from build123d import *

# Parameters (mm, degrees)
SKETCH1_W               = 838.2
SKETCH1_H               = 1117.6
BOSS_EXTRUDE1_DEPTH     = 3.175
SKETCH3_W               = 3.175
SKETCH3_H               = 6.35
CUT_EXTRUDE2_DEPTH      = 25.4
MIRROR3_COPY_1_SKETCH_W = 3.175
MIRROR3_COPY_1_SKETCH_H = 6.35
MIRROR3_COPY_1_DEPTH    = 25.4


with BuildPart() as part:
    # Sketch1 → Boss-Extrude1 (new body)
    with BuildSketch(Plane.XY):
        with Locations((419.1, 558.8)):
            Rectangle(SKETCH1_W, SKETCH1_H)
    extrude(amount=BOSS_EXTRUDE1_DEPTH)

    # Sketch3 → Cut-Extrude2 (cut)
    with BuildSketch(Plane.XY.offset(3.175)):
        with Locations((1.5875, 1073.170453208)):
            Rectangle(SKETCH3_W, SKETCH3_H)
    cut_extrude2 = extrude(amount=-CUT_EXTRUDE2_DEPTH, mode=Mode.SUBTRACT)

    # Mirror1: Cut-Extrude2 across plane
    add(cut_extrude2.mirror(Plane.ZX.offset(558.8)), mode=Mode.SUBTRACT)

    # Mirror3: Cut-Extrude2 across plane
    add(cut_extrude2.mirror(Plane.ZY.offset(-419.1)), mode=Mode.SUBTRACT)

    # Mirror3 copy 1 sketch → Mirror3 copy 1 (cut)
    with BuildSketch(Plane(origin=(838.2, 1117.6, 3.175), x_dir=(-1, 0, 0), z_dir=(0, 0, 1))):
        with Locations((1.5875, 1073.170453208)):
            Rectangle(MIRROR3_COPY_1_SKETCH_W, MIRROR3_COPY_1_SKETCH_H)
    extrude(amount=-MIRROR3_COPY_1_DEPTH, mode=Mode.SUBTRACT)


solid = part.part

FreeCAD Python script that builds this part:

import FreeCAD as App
import Part
import Sketcher
from FreeCAD import Vector
Q = App.Units.Quantity

doc = App.newDocument("Part")
body = doc.addObject("PartDesign::Body", "Body")

# Sketch on XY plane
sketch1 = body.newObject("Sketcher::SketchObject", "Sketch")
sketch1.AttachmentSupport = (doc.getObject("XY_Plane"), [""])
sketch1.MapMode = "FlatFace"
sketch1.addGeometry(Part.LineSegment(Vector(0, 1118, 0), Vector(0, 0, 0)), False)
sketch1.addGeometry(Part.LineSegment(Vector(0, 0, 0), Vector(838, 0, 0)), False)
sketch1.addGeometry(Part.LineSegment(Vector(838, 0, 0), Vector(838, 1118, 0)), False)
sketch1.addGeometry(Part.LineSegment(Vector(838, 1118, 0), Vector(0, 1118, 0)), False)
sketch1.addConstraint(Sketcher.Constraint("Coincident", 0, 2, 1, 1))
sketch1.addConstraint(Sketcher.Constraint("Coincident", 1, 2, 2, 1))
sketch1.addConstraint(Sketcher.Constraint("Coincident", 2, 2, 3, 1))
sketch1.addConstraint(Sketcher.Constraint("Coincident", 3, 2, 0, 1))
sketch1.addConstraint(Sketcher.Constraint("Vertical", 0))
sketch1.addConstraint(Sketcher.Constraint("Horizontal", 1))
sketch1.addConstraint(Sketcher.Constraint("Vertical", 2))
sketch1.addConstraint(Sketcher.Constraint("Horizontal", 3))
sketch1.addConstraint(Sketcher.Constraint("Coincident", 0, 2, -1, 1))
sketch1.addConstraint(Sketcher.Constraint("DistanceX", 1, 1, 1, 2, Q("33 in")))
sketch1.addConstraint(Sketcher.Constraint("DistanceY", 0, 2, 0, 1, Q("44 in")))
pad1 = body.newObject("PartDesign::Pad", "Pad")
pad1.Profile = sketch1
pad1.Length = Q("0.125 in")

# Sketch on XY plane
sketch2 = body.newObject("Sketcher::SketchObject", "Sketch001")
sketch2.AttachmentSupport = (doc.getObject("XY_Plane"), [""])
sketch2.MapMode = "FlatFace"
sketch2.AttachmentOffset = App.Placement(Vector(0, 0, 0.125 * 25.4), App.Rotation())
sketch2.addGeometry(Part.LineSegment(Vector(0, 1076.3, 0), Vector(0, 1070, 0)), False)
sketch2.addGeometry(Part.LineSegment(Vector(0, 1070, 0), Vector(3.2, 1070, 0)), False)
sketch2.addGeometry(Part.LineSegment(Vector(3.2, 1070, 0), Vector(3.2, 1076.3, 0)), False)
sketch2.addGeometry(Part.LineSegment(Vector(3.2, 1076.3, 0), Vector(0, 1076.3, 0)), False)
sketch2.addConstraint(Sketcher.Constraint("Coincident", 0, 2, 1, 1))
sketch2.addConstraint(Sketcher.Constraint("Coincident", 1, 2, 2, 1))
sketch2.addConstraint(Sketcher.Constraint("Coincident", 2, 2, 3, 1))
sketch2.addConstraint(Sketcher.Constraint("Coincident", 3, 2, 0, 1))
sketch2.addConstraint(Sketcher.Constraint("Vertical", 0))
sketch2.addConstraint(Sketcher.Constraint("Horizontal", 1))
sketch2.addConstraint(Sketcher.Constraint("Vertical", 2))
sketch2.addConstraint(Sketcher.Constraint("Horizontal", 3))
sketch2.addConstraint(Sketcher.Constraint("PointOnObject", 0, 2, -2))
sketch2.addConstraint(Sketcher.Constraint("DistanceY", 0, 2, 0, 1, Q("0.25 in")))
sketch2.addConstraint(Sketcher.Constraint("DistanceX", 1, 1, 1, 2, Q("0.125 in")))
sketch2.addConstraint(Sketcher.Constraint("DistanceY", -1, 1, 0, 2, Q("1069.995453 mm")))
pocket1 = body.newObject("PartDesign::Pocket", "Pocket")
pocket1.Profile = sketch2
pocket1.Length = Q("1 in")
doc.recompute()

datumplane = body.newObject("PartDesign::Plane", "DatumPlane")
datumplane.AttachmentSupport = (doc.getObject("XZ_Plane"), [""])
datumplane.MapMode = "FlatFace"
datumplane.AttachmentOffset = App.Placement(Vector(0, 0, -22 * 25.4), App.Rotation())
mirrored = body.newObject("PartDesign::Mirrored", "Mirrored")
mirrored.Originals = [pocket1]
mirrored.MirrorPlane = (datumplane, [""])
body.Tip = mirrored
doc.recompute()

datumplane2 = body.newObject("PartDesign::Plane", "DatumPlane001")
datumplane2.AttachmentSupport = (doc.getObject("YZ_Plane"), [""])
datumplane2.MapMode = "FlatFace"
datumplane2.AttachmentOffset = App.Placement(Vector(0, 0, 16.5 * 25.4), App.Rotation())
mirrored2 = body.newObject("PartDesign::Mirrored", "Mirrored001")
mirrored2.Originals = [pocket1]
mirrored2.MirrorPlane = (datumplane2, [""])
body.Tip = mirrored2

# Sketch on XY plane
sketch3 = body.newObject("Sketcher::SketchObject", "Sketch002")
sketch3.AttachmentSupport = (doc.getObject("XY_Plane"), [""])
sketch3.MapMode = "FlatFace"
sketch3.AttachmentOffset = App.Placement(Vector(0, 0, 0.125 * 25.4), App.Rotation())
sketch3.addGeometry(Part.LineSegment(Vector(838.2, 41.3, 0), Vector(838.2, 47.6, 0)), False)
sketch3.addGeometry(Part.LineSegment(Vector(838.2, 47.6, 0), Vector(835, 47.6, 0)), False)
sketch3.addGeometry(Part.LineSegment(Vector(835, 47.6, 0), Vector(835, 41.3, 0)), False)
sketch3.addGeometry(Part.LineSegment(Vector(835, 41.3, 0), Vector(838.2, 41.3, 0)), False)
sketch3.addConstraint(Sketcher.Constraint("Coincident", 0, 2, 1, 1))
sketch3.addConstraint(Sketcher.Constraint("Coincident", 1, 2, 2, 1))
sketch3.addConstraint(Sketcher.Constraint("Coincident", 2, 2, 3, 1))
sketch3.addConstraint(Sketcher.Constraint("Coincident", 3, 2, 0, 1))
sketch3.addConstraint(Sketcher.Constraint("Vertical", 0))
sketch3.addConstraint(Sketcher.Constraint("Horizontal", 1))
sketch3.addConstraint(Sketcher.Constraint("Vertical", 2))
sketch3.addConstraint(Sketcher.Constraint("Horizontal", 3))
sketch3.addConstraint(Sketcher.Constraint("DistanceX", -1, 1, 0, 2, Q("33 in")))
sketch3.addConstraint(Sketcher.Constraint("DistanceY", 0, 1, 0, 2, Q("0.25 in")))
sketch3.addConstraint(Sketcher.Constraint("DistanceX", 1, 2, 1, 1, Q("0.125 in")))
sketch3.addConstraint(Sketcher.Constraint("DistanceY", -1, 1, 0, 2, Q("47.604547 mm")))
pocket2 = body.newObject("PartDesign::Pocket", "Pocket001")
pocket2.Profile = sketch3
pocket2.Length = Q("1 in")

doc.recompute()
